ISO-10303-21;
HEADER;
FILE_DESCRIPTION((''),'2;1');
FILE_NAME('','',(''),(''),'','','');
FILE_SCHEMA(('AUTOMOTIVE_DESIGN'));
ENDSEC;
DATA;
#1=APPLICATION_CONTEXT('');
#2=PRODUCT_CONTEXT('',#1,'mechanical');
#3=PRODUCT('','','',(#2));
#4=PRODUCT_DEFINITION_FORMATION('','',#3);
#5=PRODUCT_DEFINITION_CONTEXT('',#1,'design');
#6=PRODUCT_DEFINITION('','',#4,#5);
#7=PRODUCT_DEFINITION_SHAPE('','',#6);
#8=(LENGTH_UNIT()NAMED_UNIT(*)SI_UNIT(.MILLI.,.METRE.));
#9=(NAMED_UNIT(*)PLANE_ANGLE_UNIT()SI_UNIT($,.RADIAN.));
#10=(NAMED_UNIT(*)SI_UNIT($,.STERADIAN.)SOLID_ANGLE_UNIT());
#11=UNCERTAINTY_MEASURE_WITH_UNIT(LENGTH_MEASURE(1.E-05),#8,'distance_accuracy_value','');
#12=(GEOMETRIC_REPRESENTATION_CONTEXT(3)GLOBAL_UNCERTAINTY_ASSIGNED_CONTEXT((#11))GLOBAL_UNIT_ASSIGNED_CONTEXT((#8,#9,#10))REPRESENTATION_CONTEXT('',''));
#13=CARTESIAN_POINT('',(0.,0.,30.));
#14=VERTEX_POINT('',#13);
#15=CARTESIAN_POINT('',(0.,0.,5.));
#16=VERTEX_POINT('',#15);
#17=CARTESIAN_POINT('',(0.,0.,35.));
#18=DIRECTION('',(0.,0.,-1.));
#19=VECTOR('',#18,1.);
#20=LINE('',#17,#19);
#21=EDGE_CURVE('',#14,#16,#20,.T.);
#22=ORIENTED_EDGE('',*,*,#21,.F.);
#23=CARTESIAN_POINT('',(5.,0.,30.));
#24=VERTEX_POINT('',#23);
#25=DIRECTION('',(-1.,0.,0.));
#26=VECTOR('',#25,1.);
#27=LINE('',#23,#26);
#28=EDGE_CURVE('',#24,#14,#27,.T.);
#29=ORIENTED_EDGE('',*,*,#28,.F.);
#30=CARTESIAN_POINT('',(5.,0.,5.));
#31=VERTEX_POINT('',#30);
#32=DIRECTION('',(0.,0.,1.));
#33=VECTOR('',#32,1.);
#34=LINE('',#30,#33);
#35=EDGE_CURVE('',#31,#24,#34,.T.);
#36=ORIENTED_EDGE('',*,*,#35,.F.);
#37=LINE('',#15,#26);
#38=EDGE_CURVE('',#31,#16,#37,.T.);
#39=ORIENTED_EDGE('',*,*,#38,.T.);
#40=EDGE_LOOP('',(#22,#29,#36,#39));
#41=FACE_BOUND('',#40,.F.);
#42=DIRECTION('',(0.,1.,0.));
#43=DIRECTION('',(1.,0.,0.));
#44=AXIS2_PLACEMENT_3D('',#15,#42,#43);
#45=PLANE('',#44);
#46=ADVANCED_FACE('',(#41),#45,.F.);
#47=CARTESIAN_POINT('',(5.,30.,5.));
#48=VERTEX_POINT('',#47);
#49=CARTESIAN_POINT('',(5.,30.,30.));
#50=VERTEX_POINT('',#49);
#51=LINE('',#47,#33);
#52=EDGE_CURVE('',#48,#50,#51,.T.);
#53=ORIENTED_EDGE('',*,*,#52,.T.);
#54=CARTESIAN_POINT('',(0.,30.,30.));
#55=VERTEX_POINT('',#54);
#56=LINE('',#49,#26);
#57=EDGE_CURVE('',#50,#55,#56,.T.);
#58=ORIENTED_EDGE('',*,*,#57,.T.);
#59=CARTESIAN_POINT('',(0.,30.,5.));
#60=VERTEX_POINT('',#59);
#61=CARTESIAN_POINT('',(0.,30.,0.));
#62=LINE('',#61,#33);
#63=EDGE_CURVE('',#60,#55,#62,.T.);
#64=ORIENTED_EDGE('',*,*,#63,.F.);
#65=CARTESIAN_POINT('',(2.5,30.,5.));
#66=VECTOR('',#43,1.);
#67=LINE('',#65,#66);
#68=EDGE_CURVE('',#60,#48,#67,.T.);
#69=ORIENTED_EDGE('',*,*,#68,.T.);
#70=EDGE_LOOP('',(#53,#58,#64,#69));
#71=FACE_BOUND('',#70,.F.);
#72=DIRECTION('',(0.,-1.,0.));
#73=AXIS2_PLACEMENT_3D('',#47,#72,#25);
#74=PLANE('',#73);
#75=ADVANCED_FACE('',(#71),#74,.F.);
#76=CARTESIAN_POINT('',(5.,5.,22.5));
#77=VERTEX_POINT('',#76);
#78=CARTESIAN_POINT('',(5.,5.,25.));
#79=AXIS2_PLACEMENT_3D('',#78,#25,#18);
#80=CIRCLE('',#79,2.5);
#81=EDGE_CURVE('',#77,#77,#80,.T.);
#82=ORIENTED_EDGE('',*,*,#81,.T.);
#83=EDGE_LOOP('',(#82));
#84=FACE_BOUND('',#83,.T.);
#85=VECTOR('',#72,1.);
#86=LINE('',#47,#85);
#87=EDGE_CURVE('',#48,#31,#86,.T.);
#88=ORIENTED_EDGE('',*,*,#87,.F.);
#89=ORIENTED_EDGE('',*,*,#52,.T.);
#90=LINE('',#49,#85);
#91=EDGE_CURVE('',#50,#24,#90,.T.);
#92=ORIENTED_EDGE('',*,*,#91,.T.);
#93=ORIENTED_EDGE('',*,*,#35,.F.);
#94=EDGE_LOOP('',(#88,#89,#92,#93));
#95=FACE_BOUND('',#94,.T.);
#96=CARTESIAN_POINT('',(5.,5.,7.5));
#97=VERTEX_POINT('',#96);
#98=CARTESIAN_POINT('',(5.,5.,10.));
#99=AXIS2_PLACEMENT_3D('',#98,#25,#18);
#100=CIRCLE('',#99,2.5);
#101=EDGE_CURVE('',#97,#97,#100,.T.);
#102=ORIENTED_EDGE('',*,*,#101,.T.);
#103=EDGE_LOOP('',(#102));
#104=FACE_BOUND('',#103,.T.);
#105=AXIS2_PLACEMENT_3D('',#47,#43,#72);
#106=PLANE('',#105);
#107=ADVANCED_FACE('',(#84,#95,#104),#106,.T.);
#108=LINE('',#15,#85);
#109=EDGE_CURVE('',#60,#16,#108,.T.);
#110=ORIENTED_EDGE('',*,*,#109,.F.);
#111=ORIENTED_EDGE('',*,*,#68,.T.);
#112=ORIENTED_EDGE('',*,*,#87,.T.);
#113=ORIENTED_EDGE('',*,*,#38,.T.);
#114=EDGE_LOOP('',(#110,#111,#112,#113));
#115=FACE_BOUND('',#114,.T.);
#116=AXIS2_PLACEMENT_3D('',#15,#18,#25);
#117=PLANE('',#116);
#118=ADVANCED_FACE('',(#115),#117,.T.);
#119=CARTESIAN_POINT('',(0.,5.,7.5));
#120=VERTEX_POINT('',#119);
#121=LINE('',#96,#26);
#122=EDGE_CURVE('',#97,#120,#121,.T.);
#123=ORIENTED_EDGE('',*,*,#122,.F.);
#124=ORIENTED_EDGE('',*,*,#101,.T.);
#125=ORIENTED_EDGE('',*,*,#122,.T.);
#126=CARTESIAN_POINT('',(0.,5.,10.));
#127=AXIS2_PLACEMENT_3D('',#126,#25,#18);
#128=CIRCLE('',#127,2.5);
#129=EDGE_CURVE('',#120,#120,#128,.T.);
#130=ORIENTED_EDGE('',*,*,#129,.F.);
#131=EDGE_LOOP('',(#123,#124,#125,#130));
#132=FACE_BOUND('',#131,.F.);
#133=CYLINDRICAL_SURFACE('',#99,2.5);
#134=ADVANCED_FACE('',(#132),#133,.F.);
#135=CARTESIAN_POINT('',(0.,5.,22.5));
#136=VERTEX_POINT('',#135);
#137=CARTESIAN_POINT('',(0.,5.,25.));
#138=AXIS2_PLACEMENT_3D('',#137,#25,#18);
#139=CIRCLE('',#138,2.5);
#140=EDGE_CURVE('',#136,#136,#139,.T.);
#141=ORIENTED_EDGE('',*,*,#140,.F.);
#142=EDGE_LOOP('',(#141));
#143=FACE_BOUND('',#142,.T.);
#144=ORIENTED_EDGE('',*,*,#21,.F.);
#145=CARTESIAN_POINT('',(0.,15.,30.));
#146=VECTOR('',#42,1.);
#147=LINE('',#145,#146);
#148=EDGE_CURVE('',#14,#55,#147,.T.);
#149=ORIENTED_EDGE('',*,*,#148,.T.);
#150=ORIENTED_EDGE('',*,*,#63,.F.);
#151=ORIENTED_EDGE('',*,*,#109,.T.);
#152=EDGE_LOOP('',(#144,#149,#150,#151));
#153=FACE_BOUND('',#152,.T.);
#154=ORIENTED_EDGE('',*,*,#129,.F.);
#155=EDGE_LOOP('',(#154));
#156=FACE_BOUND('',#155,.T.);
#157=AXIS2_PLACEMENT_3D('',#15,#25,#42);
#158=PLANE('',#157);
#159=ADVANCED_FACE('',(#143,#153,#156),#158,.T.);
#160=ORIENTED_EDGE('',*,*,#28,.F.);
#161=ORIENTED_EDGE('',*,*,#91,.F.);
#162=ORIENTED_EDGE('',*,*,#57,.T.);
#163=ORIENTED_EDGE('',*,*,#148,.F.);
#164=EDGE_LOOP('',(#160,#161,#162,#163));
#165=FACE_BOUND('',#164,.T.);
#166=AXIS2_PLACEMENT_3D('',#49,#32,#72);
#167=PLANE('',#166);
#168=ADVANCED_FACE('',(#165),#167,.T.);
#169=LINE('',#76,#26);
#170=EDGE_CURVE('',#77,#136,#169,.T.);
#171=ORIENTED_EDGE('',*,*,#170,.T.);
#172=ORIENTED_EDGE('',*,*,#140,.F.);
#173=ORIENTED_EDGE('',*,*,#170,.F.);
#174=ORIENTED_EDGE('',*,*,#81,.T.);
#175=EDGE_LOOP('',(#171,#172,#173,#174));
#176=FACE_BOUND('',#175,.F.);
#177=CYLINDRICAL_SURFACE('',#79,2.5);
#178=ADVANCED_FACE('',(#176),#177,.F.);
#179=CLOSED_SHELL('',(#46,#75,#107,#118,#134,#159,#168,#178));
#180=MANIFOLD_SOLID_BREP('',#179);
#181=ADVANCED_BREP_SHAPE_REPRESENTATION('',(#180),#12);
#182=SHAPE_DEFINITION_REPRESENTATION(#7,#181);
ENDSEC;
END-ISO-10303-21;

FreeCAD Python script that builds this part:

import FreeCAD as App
import Part
import Sketcher
from FreeCAD import Vector


def add_polygon(sketch, points):
    """Adds a closed chain of lines whose ends are joined by coincident constraints."""
    first, n = sketch.GeometryCount, len(points)
    for a, b in zip(points, points[1:] + points[:1]):
        sketch.addGeometry(Part.LineSegment(App.Vector(*a, 0), App.Vector(*b, 0)), False)
    for i in range(n):
        sketch.addConstraint(Sketcher.Constraint("Coincident", first + i, 2, first + (i + 1) % n, 1))

doc = App.newDocument("Part")
params = doc.addObject("Spreadsheet::Sheet", "Params")
for row, (alias, value) in enumerate([
    ("sketch1_height", "30 mm"),
    ("sketch1_width", "15 mm"),
    ("pad1_length", "5 mm"),
    ("sketch2_diameter", "5 mm"),
    ("hole_diameter", "5 mm"),
    ("hole_depth", "8 mm"),
    ("sketch3_width", "5 mm"),
    ("sketch3_height", "30 mm"),
    ("pad2_length", "30 mm"),
    ("sketch4_diameter", "5 mm"),
    ("hole2_diameter", "5 mm"),
    ("hole2_depth", "8 mm"),
    ("sketch5_height", "5 mm"),
    ("sketch5_width", "30 mm"),
    ("pocket2_length", "5 mm"),
], start=1):
    params.set(f"A{row}", alias)
    params.set(f"B{row}", "=" + value)
    params.setAlias(f"B{row}", alias)

body = doc.addObject("PartDesign::Body", "Body")

# Sketch on XY plane
sketch1 = body.newObject("Sketcher::SketchObject", "Sketch")
sketch1.AttachmentSupport = (doc.getObject("XY_Plane"), [""])
sketch1.MapMode = "FlatFace"
add_polygon(sketch1, [(0, 30), (0, 0), (15, 0), (15, 30)])  # lines 0-3
sketch1.addConstraint([
    Sketcher.Constraint("Vertical", 0),
    Sketcher.Constraint("Horizontal", 1),
    Sketcher.Constraint("Vertical", 2),
    Sketcher.Constraint("Horizontal", 3),
    Sketcher.Constraint("Coincident", 0, 2, -1, 1),
    Sketcher.Constraint("DistanceY", 0, 2, 0, 1, 30.0),
    Sketcher.Constraint("DistanceX", 1, 1, 1, 2, 15.0),
])
sketch1.setExpression("Constraints[9]", "Params.sketch1_height")
sketch1.setExpression("Constraints[10]", "Params.sketch1_width")
pad1 = body.newObject("PartDesign::Pad", "Pad")
pad1.Profile = sketch1
pad1.setExpression("Length", "Params.pad1_length")

# Sketch on XY plane
sketch2 = body.newObject("Sketcher::SketchObject", "Sketch001")
sketch2.AttachmentSupport = (doc.getObject("XY_Plane"), [""])
sketch2.MapMode = "FlatFace"
sketch2.AttachmentOffset = App.Placement(Vector(0, 0, 5), App.Rotation())
sketch2.addGeometry([
    Part.Circle(Vector(10, 21, 0), Vector(0, 0, 1), 2.5),
    Part.Circle(Vector(10, 9, 0), Vector(0, 0, 1), 2.5),
], False)
sketch2.addConstraint([
    Sketcher.Constraint("Equal", 0, 1),
    Sketcher.Constraint("Vertical", 0, 3, 1, 3),
    Sketcher.Constraint("Diameter", 0, 5.0),
    Sketcher.Constraint("DistanceX", -1, 1, 0, 3, 10.0),
    Sketcher.Constraint("DistanceY", -1, 1, 0, 3, 21.0),
    Sketcher.Constraint("DistanceY", -1, 1, 1, 3, 9.0),
])
sketch2.setExpression("Constraints[2]", "Params.sketch2_diameter")
doc.recompute()
hole = body.newObject("PartDesign::Hole", "Hole")
hole.Profile = sketch2
hole.ThreadType = "None"
hole.setExpression("Diameter", "Params.hole_diameter")
hole.DepthType = "Dimension"
hole.setExpression("Depth", "Params.hole_depth")
hole.DrillPoint = "Flat"

# Sketch on XY plane
sketch3 = body.newObject("Sketcher::SketchObject", "Sketch002")
sketch3.AttachmentSupport = (doc.getObject("XY_Plane"), [""])
sketch3.MapMode = "FlatFace"
sketch3.AttachmentOffset = App.Placement(Vector(0, 0, 5), App.Rotation())
add_polygon(sketch3, [(5, 0), (5, 30), (0, 30), (0, 0)])  # lines 0-3
sketch3.addConstraint([
    Sketcher.Constraint("Vertical", 0),
    Sketcher.Constraint("Horizontal", 1),
    Sketcher.Constraint("Vertical", 2),
    Sketcher.Constraint("Horizontal", 3),
    Sketcher.Constraint("Coincident", 2, 2, -1, 1),
    Sketcher.Constraint("DistanceX", 1, 2, 1, 1, 5.0),
    Sketcher.Constraint("DistanceY", 0, 1, 0, 2, 30.0),
])
sketch3.setExpression("Constraints[9]", "Params.sketch3_width")
sketch3.setExpression("Constraints[10]", "Params.sketch3_height")
pad2 = body.newObject("PartDesign::Pad", "Pad001")
pad2.Profile = sketch3
pad2.setExpression("Length", "Params.pad2_length")

# Sketch on YZ plane
sketch4 = body.newObject("Sketcher::SketchObject", "Sketch003")
sketch4.AttachmentSupport = (doc.getObject("YZ_Plane"), [""])
sketch4.MapMode = "FlatFace"
sketch4.AttachmentOffset = App.Placement(Vector(0, 0, 5), App.Rotation())
sketch4.addGeometry([
    Part.Circle(Vector(5, 25, 0), Vector(0, 0, 1), 2.5),
    Part.Circle(Vector(5, 10, 0), Vector(0, 0, 1), 2.5),
], False)
sketch4.addConstraint([
    Sketcher.Constraint("Equal", 0, 1),
    Sketcher.Constraint("Vertical", 0, 3, 1, 3),
    Sketcher.Constraint("Diameter", 0, 5.0),
    Sketcher.Constraint("DistanceX", -1, 1, 0, 3, 5.0),
    Sketcher.Constraint("DistanceY", -1, 1, 0, 3, 25.0),
    Sketcher.Constraint("DistanceY", -1, 1, 1, 3, 10.0),
])
sketch4.setExpression("Constraints[2]", "Params.sketch4_diameter")
doc.recompute()
hole2 = body.newObject("PartDesign::Hole", "Hole001")
hole2.Profile = sketch4
hole2.ThreadType = "None"
hole2.setExpression("Diameter", "Params.hole2_diameter")
hole2.DepthType = "Dimension"
hole2.setExpression("Depth", "Params.hole2_depth")
hole2.DrillPoint = "Flat"

# Sketch on YZ plane
sketch5 = body.newObject("Sketcher::SketchObject", "Sketch004")
sketch5.AttachmentSupport = (doc.getObject("YZ_Plane"), [""])
sketch5.MapMode = "FlatFace"
sketch5.AttachmentOffset = App.Placement(Vector(0, 0, 5), App.Rotation())
add_polygon(sketch5, [(0, 30), (30, 30), (30, 35), (0, 35)])  # lines 0-3
sketch5.addConstraint([
    Sketcher.Constraint("Horizontal", 0),
    Sketcher.Constraint("Vertical", 1),
    Sketcher.Constraint("Horizontal", 2),
    Sketcher.Constraint("Vertical", 3),
    Sketcher.Constraint("PointOnObject", 2, 2, -2),
    Sketcher.Constraint("DistanceY", 1, 1, 1, 2, 5.0),
    Sketcher.Constraint("DistanceX", 0, 1, 0, 2, 30.0),
    Sketcher.Constraint("DistanceY", -1, 1, 0, 2, 30.0),
])
sketch5.setExpression("Constraints[9]", "Params.sketch5_height")
sketch5.setExpression("Constraints[10]", "Params.sketch5_width")
pocket1 = body.newObject("PartDesign::Pocket", "Pocket")
pocket1.Profile = sketch5
pocket1.Type = "ThroughAll"

# Sketch on XY plane
sketch6 = body.newObject("Sketcher::SketchObject", "Sketch005")
sketch6.AttachmentSupport = (doc.getObject("XY_Plane"), [""])
sketch6.MapMode = "FlatFace"
add_polygon(sketch6, [(-17, 44), (35, 44), (35, -12), (-17, -12)])  # lines 0-3
sketch6.addConstraint([
    Sketcher.Constraint("Horizontal", 0),
    Sketcher.Constraint("Vertical", 1),
    Sketcher.Constraint("Horizontal", 2),
    Sketcher.Constraint("Vertical", 3),
    Sketcher.Constraint("DistanceX", 0, 1, 0, 2, 52.924),
    Sketcher.Constraint("DistanceY", 1, 2, 1, 1, 55.6257),
    Sketcher.Constraint("DistanceY", -1, 1, 0, 2, 44.104),
    Sketcher.Constraint("DistanceX", -1, 1, 0, 2, 35.4456),
])
pocket2 = body.newObject("PartDesign::Pocket", "Pocket001")
pocket2.Profile = sketch6
pocket2.setExpression("Length", "Params.pocket2_length")
pocket2.Reversed = True

doc.recompute()
